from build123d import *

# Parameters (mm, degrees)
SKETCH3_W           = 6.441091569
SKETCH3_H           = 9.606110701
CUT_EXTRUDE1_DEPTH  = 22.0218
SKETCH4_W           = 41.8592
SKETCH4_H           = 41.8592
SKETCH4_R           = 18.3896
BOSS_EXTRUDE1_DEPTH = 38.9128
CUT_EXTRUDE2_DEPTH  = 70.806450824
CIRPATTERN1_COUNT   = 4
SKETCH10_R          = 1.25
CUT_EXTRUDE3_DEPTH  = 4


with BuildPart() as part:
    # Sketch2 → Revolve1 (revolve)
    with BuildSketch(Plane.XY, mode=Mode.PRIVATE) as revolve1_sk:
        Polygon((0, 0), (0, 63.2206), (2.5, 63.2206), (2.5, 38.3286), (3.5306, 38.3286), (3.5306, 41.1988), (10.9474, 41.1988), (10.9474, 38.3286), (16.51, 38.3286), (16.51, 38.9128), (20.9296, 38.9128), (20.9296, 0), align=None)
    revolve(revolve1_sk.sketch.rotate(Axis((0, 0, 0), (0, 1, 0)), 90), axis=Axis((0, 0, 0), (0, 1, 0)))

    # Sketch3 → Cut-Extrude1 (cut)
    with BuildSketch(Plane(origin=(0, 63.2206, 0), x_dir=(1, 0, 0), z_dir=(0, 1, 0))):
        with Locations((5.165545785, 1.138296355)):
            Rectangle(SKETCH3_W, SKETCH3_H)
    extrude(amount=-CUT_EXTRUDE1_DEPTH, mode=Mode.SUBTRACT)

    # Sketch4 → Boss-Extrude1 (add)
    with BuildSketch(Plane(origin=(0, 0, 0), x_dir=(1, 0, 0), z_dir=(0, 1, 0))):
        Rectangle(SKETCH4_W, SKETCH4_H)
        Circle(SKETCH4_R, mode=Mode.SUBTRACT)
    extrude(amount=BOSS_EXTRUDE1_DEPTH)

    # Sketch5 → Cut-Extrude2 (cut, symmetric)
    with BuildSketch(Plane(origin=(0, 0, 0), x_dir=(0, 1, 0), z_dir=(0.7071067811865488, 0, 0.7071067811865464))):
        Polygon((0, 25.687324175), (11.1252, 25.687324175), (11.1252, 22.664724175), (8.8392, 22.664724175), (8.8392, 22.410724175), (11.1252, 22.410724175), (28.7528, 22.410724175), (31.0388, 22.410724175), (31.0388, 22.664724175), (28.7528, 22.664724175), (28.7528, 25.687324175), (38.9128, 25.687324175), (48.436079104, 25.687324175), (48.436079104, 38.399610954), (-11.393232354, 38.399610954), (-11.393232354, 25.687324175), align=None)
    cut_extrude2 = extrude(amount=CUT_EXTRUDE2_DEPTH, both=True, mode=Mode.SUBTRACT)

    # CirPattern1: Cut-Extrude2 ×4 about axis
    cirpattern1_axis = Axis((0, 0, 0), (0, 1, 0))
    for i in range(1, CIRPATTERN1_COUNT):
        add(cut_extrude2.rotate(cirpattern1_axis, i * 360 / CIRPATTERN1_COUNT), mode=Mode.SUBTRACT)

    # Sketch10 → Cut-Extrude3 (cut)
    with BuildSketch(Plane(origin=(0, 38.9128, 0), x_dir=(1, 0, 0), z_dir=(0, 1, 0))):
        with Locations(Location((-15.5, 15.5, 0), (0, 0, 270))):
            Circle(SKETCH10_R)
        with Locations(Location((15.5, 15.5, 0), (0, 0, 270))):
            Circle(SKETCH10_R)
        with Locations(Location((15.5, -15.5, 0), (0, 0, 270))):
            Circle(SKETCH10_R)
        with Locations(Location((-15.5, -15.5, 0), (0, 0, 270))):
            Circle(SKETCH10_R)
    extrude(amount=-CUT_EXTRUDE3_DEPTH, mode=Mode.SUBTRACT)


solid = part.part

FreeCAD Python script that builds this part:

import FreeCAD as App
import Part
import Sketcher
Q = App.Units.Quantity


def add_polygon(sketch, points):
    """Adds a closed chain of lines whose ends are joined by coincident constraints."""
    first, n = sketch.GeometryCount, len(points)
    for a, b in zip(points, points[1:] + points[:1]):
        sketch.addGeometry(Part.LineSegment(App.Vector(*a, 0), App.Vector(*b, 0)), False)
    for i in range(n):
        sketch.addConstraint(Sketcher.Constraint("Coincident", first + i, 2, first + (i + 1) % n, 1))

doc = App.newDocument("Part")
body = doc.addObject("PartDesign::Body", "Body")

sketch1 = body.newObject("Sketcher::SketchObject", "Sketch")
sketch1.AttachmentSupport = (doc.getObject("XY_Plane"), [""])
sketch1.MapMode = "FlatFace"
add_polygon(sketch1, [(0, 63.2206), (0, 0), (20.9296, 0), (20.9296, 38.9128), (16.51, 38.9128), (16.51, 38.3286), (10.9474, 38.3286), (10.9474, 41.1988), (3.5306, 41.1988), (3.5306, 38.3286), (2.5, 38.3286), (2.5, 63.2206)])
sketch1.addConstraint([
    Sketcher.Constraint("Vertical", 0),
    Sketcher.Constraint("Horizontal", 1),
    Sketcher.Constraint("Vertical", 2),
    Sketcher.Constraint("Horizontal", 3),
    Sketcher.Constraint("Vertical", 4),
    Sketcher.Constraint("Horizontal", 5),
    Sketcher.Constraint("Vertical", 6),
    Sketcher.Constraint("Horizontal", 7),
    Sketcher.Constraint("Vertical", 8),
    Sketcher.Constraint("Horizontal", 9),
    Sketcher.Constraint("Vertical", 10),
    Sketcher.Constraint("Horizontal", 11),
    Sketcher.Constraint("Coincident", 0, 2, -1, 1),
    Sketcher.Constraint("Horizontal", 5, 2, 8, 2),
    Sketcher.Constraint("DistanceY", 10, 1, 10, 2, Q("0.98 in")),
    Sketcher.Constraint("DistanceX", 1, 1, 1, 2, Q("0.824 in")),
    Sketcher.Constraint("DistanceX", 3, 2, 3, 1, Q("0.174 in")),
    Sketcher.Constraint("DistanceX", 5, 2, 5, 1, Q("0.219 in")),
    Sketcher.Constraint("DistanceX", 7, 2, 7, 1, Q("0.292 in")),
    Sketcher.Constraint("DistanceY", 0, 2, 0, 1, Q("2.489 in")),
    Sketcher.Constraint("DistanceY", 2, 1, 2, 2, Q("1.532 in")),
    Sketcher.Constraint("DistanceY", 6, 1, 6, 2, Q("0.113 in")),
    Sketcher.Constraint("DistanceX", 9, 2, 9, 1, Q("1.0306 mm")),
])
revolution = body.newObject("PartDesign::Revolution", "Revolution")
revolution.Profile = sketch1
revolution.ReferenceAxis = (sketch1, ["V_Axis"])
revolution.Angle = 360

sketch2 = body.newObject("Sketcher::SketchObject", "Sketch001")
sketch2.AttachmentSupport = (doc.getObject("XZ_Plane"), [""])
sketch2.MapMode = "FlatFace"
sketch2.AttachmentOffset = App.Placement(App.Vector(0, 0, -2.489 * 25.4), App.Rotation())
add_polygon(sketch2, [(1.945, -5.941352), (1.945, 3.664759), (8.386092, 3.664759), (8.386092, -5.941352)])
sketch2.addConstraint([
    Sketcher.Constraint("Vertical", 0),
    Sketcher.Constraint("Horizontal", 1),
    Sketcher.Constraint("Vertical", 2),
    Sketcher.Constraint("Horizontal", 3),
    Sketcher.Constraint("DistanceX", 1, 1, 1, 2, Q("6.441092 mm")),
    Sketcher.Constraint("DistanceY", 0, 1, 0, 2, Q("9.606111 mm")),
    Sketcher.Constraint("DistanceX", -1, 1, 0, 2, Q("1.945 mm")),
    Sketcher.Constraint("DistanceY", -1, 1, 0, 2, Q("3.664759 mm")),
])
pocket1 = body.newObject("PartDesign::Pocket", "Pocket")
pocket1.Profile = sketch2
pocket1.Length = Q("0.867 in")
pocket1.Reversed = True

sketch3 = body.newObject("Sketcher::SketchObject", "Sketch002")
sketch3.AttachmentSupport = (doc.getObject("XZ_Plane"), [""])
sketch3.MapMode = "FlatFace"
add_polygon(sketch3, [(-20.9296, -20.9296), (-20.9296, 20.9296), (20.9296, 20.9296), (20.9296, -20.9296)])
sketch3.addGeometry(Part.Circle(App.Vector(0, 0, 0), App.Vector(0, 0, 1), 18.3896), False)
sketch3.addConstraint([
    Sketcher.Constraint("Vertical", 0),
    Sketcher.Constraint("Horizontal", 1),
    Sketcher.Constraint("Vertical", 2),
    Sketcher.Constraint("Horizontal", 3),
    Sketcher.Constraint("Coincident", 4, 3, -1, 1),
    Sketcher.Constraint("Symmetric", 0, 2, 2, 2, -1, 1),
    Sketcher.Constraint("Equal", 3, 0),
    Sketcher.Constraint("Diameter", 4, Q("1.448 in")),
    Sketcher.Constraint("DistanceX", 1, 1, 1, 2, Q("1.648 in")),
])
pad1 = body.newObject("PartDesign::Pad", "Pad")
pad1.Profile = sketch3
pad1.Length = Q("1.532 in")
pad1.Reversed = True

sketch4 = body.newObject("Sketcher::SketchObject", "Sketch003")
sketch4.Placement = App.Placement(App.Vector(0, 0, 0), App.Rotation(App.Vector(0, 1, 0), App.Vector(-0.707106781, 0, 0.707106781), App.Vector(0.707106781, 0, 0.707106781), "ZXY"))
add_polygon(sketch4, [(11.1252, 25.687324), (11.1252, 22.664724), (8.8392, 22.664724), (8.8392, 22.410724), (31.0388, 22.410724), (31.0388, 22.664724), (28.7528, 22.664724), (28.7528, 25.687324), (48.436079, 25.687324), (48.436079, 38.399611), (-11.393232, 38.399611), (-11.393232, 25.687324)])
sketch4.addConstraint([
    Sketcher.Constraint("Vertical", 0),
    Sketcher.Constraint("Horizontal", 1),
    Sketcher.Constraint("Vertical", 2),
    Sketcher.Constraint("Horizontal", 3),
    Sketcher.Constraint("Vertical", 4),
    Sketcher.Constraint("Horizontal", 5),
    Sketcher.Constraint("Vertical", 6),
    Sketcher.Constraint("Horizontal", 7),
    Sketcher.Constraint("Vertical", 8),
    Sketcher.Constraint("Horizontal", 9),
    Sketcher.Constraint("Vertical", 10),
    Sketcher.Constraint("Horizontal", 11),
    Sketcher.Constraint("Horizontal", 1, 2, 4, 2),
    Sketcher.Constraint("Horizontal", 7, 2, 10, 2),
    Sketcher.Constraint("Equal", 1, 5),
    Sketcher.Constraint("DistanceX", 1, 2, 1, 1, Q("0.09 in")),
    Sketcher.Constraint("DistanceY", 2, 2, 2, 1, Q("0.01 in")),
    Sketcher.Constraint("DistanceX", 3, 1, 3, 2, Q("0.874 in")),
    Sketcher.Constraint("DistanceY", 0, 2, 0, 1, Q("0.119 in")),
    Sketcher.Constraint("DistanceX", -1, 1, 0, 2, Q("0.438 in")),
    Sketcher.Constraint("DistanceX", 7, 1, 7, 2, Q("19.683279 mm")),
    Sketcher.Constraint("DistanceX", 9, 2, 9, 1, Q("59.829311 mm")),
    Sketcher.Constraint("DistanceY", 8, 1, 8, 2, Q("12.712287 mm")),
    Sketcher.Constraint("DistanceY", -1, 1, 8, 2, Q("38.399611 mm")),
])
pocket2 = body.newObject("PartDesign::Pocket", "Pocket001")
pocket2.Profile = sketch4
pocket2.Length = 141.612902
pocket2.Midplane = True
doc.recompute()

polarpattern = body.newObject("PartDesign::PolarPattern", "PolarPattern")
polarpattern.Originals = [pocket2]
polarpattern.Axis = (doc.getObject("Y_Axis"), [""])
polarpattern.Angle = 360
polarpattern.Occurrences = 4
body.Tip = polarpattern

sketch5 = body.newObject("Sketcher::SketchObject", "Sketch004")
sketch5.AttachmentSupport = (doc.getObject("XZ_Plane"), [""])
sketch5.MapMode = "FlatFace"
sketch5.AttachmentOffset = App.Placement(App.Vector(0, 0, -1.532 * 25.4), App.Rotation())
sketch5.addGeometry([
    Part.Circle(App.Vector(-15.5, -15.5, 0), App.Vector(0, 0, 1), 1.25),
    Part.Circle(App.Vector(15.5, -15.5, 0), App.Vector(0, 0, 1), 1.25),
    Part.Circle(App.Vector(15.5, 15.5, 0), App.Vector(0, 0, 1), 1.25),
    Part.Circle(App.Vector(-15.5, 15.5, 0), App.Vector(0, 0, 1), 1.25),
], False)
sketch5.addConstraint([
    Sketcher.Constraint("Equal", 0, 1),
    Sketcher.Constraint("Equal", 1, 2),
    Sketcher.Constraint("Equal", 2, 3),
    Sketcher.Constraint("Symmetric", 0, 3, 2, 3, -1, 1),
    Sketcher.Constraint("Symmetric", 1, 3, 3, 3, -1, 1),
    Sketcher.Constraint("Symmetric", 0, 3, 1, 3, -2),
    Sketcher.Constraint("Diameter", 0, Q("2.5 mm")),
    Sketcher.Constraint("DistanceX", 0, 3, -1, 1, Q("15.5 mm")),
    Sketcher.Constraint("DistanceY", 0, 3, -1, 1, Q("15.5 mm")),
])
pocket3 = body.newObject("PartDesign::Pocket", "Pocket002")
pocket3.Profile = sketch5
pocket3.Length = 4
pocket3.Reversed = True

doc.recompute()
